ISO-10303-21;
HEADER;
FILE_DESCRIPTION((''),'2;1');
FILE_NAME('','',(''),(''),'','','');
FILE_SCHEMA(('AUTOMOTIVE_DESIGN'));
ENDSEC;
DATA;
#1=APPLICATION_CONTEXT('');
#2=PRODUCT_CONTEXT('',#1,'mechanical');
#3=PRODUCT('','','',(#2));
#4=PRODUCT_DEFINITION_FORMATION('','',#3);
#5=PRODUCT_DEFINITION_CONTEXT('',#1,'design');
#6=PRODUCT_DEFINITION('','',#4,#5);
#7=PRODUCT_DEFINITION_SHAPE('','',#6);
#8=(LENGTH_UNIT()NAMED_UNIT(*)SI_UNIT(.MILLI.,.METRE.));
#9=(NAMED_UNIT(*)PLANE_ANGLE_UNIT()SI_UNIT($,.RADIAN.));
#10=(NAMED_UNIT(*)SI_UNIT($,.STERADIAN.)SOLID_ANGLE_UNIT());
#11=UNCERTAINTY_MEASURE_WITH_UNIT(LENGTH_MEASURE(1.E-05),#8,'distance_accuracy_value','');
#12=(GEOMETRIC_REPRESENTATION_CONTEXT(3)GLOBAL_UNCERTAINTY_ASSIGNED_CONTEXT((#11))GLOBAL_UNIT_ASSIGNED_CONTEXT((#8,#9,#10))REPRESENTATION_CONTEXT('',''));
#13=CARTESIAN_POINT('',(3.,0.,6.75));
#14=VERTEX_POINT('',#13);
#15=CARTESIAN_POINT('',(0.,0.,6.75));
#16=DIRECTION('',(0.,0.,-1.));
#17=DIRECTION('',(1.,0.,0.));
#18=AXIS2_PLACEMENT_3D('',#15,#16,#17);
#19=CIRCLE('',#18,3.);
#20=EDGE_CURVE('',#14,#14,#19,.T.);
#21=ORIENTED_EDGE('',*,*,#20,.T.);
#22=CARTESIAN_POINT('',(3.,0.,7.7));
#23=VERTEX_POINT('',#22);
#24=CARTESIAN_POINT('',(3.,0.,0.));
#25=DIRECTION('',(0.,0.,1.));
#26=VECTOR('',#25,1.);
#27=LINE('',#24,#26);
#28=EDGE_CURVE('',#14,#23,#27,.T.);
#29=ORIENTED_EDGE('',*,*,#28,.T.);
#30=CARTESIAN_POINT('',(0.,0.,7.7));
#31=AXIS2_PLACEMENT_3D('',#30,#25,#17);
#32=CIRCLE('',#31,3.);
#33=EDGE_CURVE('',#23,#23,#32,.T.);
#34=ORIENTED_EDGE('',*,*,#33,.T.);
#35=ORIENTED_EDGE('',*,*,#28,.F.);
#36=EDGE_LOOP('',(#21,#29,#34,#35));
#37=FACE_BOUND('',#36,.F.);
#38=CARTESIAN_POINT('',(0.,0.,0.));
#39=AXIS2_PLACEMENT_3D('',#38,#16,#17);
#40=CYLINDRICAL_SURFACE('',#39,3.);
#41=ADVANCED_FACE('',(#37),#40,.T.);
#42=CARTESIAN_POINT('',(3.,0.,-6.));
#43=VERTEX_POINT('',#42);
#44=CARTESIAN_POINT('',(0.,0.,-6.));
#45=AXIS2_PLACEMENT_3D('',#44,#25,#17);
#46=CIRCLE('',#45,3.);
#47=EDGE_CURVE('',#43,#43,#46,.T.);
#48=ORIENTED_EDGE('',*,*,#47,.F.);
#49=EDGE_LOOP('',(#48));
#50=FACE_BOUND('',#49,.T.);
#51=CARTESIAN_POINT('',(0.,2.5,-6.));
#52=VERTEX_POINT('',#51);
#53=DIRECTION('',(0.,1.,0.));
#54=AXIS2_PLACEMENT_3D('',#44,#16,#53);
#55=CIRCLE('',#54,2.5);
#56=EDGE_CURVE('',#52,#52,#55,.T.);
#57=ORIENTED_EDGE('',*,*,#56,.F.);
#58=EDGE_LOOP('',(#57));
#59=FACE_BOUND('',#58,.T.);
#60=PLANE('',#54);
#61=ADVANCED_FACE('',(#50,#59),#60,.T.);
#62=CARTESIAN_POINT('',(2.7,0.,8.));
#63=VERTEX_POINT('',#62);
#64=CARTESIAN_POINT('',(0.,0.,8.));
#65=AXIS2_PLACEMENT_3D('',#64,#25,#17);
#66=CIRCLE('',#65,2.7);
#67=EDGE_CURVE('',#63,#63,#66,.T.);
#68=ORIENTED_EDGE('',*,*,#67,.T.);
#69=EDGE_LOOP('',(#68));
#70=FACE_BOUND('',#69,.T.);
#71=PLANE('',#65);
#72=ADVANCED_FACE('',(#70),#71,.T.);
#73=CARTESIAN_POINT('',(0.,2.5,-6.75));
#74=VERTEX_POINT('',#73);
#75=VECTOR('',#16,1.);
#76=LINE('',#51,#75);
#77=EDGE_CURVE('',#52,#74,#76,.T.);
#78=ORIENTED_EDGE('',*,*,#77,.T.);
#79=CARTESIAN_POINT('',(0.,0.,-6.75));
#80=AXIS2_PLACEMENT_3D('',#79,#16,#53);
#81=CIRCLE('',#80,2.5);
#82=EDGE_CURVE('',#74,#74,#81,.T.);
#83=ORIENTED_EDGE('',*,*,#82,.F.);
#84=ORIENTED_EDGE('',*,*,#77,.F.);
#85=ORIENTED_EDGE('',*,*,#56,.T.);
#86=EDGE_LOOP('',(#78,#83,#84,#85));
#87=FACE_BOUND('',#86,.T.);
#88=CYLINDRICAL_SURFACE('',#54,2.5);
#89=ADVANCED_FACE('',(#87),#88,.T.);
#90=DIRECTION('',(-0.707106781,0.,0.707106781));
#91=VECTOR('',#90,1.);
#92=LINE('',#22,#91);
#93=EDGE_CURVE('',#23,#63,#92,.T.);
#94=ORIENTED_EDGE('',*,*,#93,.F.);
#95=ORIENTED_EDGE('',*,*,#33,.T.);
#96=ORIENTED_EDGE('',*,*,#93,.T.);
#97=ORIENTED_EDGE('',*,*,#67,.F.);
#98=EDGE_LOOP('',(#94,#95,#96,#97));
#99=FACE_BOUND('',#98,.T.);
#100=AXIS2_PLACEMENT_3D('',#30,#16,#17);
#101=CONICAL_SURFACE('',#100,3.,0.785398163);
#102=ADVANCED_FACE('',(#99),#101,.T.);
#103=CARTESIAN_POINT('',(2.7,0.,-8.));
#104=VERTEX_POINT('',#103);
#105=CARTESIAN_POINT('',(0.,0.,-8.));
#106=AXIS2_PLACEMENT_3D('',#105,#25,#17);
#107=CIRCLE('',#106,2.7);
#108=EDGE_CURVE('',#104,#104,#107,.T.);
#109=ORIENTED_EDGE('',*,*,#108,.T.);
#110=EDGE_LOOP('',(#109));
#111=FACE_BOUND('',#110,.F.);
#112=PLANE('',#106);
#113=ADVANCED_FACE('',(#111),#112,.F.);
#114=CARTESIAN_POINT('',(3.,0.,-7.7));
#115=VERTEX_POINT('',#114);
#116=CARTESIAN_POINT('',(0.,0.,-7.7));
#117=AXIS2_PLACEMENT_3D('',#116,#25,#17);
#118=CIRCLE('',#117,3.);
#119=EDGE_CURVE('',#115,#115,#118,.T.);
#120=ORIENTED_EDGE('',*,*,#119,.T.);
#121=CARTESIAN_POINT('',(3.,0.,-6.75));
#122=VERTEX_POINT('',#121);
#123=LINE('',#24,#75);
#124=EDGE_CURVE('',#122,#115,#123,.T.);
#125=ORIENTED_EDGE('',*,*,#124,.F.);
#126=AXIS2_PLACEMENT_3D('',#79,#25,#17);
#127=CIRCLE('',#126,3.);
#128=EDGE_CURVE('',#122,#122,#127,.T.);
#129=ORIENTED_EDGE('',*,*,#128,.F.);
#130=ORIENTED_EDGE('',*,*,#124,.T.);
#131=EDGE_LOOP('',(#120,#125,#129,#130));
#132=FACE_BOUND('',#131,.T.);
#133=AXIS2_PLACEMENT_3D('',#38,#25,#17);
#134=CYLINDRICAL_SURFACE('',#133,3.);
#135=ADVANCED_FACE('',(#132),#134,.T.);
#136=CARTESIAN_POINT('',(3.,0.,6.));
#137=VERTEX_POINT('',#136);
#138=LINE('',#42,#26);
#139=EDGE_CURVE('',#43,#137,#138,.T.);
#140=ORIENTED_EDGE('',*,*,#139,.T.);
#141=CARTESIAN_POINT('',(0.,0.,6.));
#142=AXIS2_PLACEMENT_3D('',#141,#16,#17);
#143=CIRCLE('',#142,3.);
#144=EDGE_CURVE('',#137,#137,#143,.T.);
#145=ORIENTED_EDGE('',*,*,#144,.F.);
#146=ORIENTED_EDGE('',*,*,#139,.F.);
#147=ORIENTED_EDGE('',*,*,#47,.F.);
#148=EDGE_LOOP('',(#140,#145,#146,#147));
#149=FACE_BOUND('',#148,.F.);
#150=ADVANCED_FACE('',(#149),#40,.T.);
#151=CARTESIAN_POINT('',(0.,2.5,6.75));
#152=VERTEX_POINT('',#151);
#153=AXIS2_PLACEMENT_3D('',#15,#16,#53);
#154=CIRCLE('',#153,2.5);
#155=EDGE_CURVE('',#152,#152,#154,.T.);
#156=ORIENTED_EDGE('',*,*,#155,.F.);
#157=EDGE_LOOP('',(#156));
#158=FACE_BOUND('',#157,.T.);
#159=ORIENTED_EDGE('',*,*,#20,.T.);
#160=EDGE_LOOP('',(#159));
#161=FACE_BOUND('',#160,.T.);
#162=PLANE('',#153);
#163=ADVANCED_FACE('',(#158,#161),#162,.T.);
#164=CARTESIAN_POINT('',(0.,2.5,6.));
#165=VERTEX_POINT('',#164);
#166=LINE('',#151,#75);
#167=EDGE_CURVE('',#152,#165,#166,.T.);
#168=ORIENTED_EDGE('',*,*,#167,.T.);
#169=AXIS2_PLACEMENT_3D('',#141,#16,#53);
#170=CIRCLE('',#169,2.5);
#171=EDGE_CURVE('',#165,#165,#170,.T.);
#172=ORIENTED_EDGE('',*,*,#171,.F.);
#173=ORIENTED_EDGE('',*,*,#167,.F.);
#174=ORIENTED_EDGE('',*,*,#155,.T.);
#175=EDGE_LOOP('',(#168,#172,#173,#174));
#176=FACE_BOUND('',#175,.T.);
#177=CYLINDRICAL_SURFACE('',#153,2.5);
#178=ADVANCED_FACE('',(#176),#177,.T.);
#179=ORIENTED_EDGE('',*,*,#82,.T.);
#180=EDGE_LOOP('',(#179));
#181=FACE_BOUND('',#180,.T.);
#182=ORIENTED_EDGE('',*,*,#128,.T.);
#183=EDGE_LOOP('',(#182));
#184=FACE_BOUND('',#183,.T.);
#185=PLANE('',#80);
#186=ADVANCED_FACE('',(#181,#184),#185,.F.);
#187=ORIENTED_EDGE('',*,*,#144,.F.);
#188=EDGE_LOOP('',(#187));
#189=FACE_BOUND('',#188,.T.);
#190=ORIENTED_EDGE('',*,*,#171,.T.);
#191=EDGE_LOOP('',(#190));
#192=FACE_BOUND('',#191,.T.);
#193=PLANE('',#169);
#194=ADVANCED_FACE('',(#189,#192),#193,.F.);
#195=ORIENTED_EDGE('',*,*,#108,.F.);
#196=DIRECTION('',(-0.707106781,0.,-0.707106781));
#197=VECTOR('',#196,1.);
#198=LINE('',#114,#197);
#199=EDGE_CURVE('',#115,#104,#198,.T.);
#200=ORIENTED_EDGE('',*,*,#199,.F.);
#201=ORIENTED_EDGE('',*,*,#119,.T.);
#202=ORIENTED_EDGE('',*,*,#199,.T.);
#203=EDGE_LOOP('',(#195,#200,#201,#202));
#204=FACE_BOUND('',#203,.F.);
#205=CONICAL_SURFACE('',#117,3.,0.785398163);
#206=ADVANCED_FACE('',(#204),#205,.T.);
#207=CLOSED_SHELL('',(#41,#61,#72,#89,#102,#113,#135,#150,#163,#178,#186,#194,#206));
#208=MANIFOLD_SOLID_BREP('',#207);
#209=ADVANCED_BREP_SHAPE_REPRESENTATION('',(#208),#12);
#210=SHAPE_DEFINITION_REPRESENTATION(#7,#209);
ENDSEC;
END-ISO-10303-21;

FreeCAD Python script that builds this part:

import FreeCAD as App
import Part
import Sketcher
from FreeCAD import Vector


def edges_at(feature, points):
    """Names of the edges that pass closest to the given points."""
    edges = feature.Shape.Edges
    near = lambda p: min(range(len(edges)), key=lambda i: edges[i].distToShape(Part.Vertex(*p))[0])
    return sorted({f"Edge{near(p) + 1}" for p in points})

doc = App.newDocument("Part")
body = doc.addObject("PartDesign::Body", "Body")

sketch1 = body.newObject("Sketcher::SketchObject", "Sketch")
sketch1.AttachmentSupport = (doc.getObject("XY_Plane"), [""])
sketch1.MapMode = "FlatFace"
sketch1.addGeometry(Part.Circle(Vector(0, 0, 0), Vector(0, 0, 1), 3), False)
sketch1.addConstraint([
    Sketcher.Constraint("Coincident", 0, 3, -1, 1),
    Sketcher.Constraint("Diameter", 0, 6.0),
])
pad1 = body.newObject("PartDesign::Pad", "Pad")
pad1.Profile = sketch1
pad1.Length = 16
pad1.Midplane = True

sketch2 = body.newObject("Sketcher::SketchObject", "Sketch001")
sketch2.AttachmentSupport = (doc.getObject("YZ_Plane"), [""])
sketch2.MapMode = "FlatFace"
sketch2.addGeometry([
    Part.LineSegment(Vector(3.25, -6.75, 0), Vector(3.25, -6, 0)),
    Part.LineSegment(Vector(3.25, -6, 0), Vector(2.5, -6, 0)),
    Part.LineSegment(Vector(2.5, -6, 0), Vector(2.5, -6.75, 0)),
    Part.LineSegment(Vector(2.5, -6.75, 0), Vector(3.25, -6.75, 0)),
    Part.LineSegment(Vector(3.1313, 6, 0), Vector(3.1313, 6.75, 0)),
    Part.LineSegment(Vector(3.1313, 6.75, 0), Vector(2.5, 6.75, 0)),
    Part.LineSegment(Vector(2.5, 6.75, 0), Vector(2.5, 6, 0)),
    Part.LineSegment(Vector(2.5, 6, 0), Vector(3.1313, 6, 0)),
], False)
sketch2.addConstraint([
    Sketcher.Constraint("Coincident", 0, 2, 1, 1),
    Sketcher.Constraint("Coincident", 1, 2, 2, 1),
    Sketcher.Constraint("Coincident", 2, 2, 3, 1),
    Sketcher.Constraint("Coincident", 3, 2, 0, 1),
    Sketcher.Constraint("Coincident", 4, 2, 5, 1),
    Sketcher.Constraint("Coincident", 5, 2, 6, 1),
    Sketcher.Constraint("Coincident", 6, 2, 7, 1),
    Sketcher.Constraint("Coincident", 7, 2, 4, 1),
    Sketcher.Constraint("Vertical", 0),
    Sketcher.Constraint("Horizontal", 1),
    Sketcher.Constraint("Vertical", 2),
    Sketcher.Constraint("Horizontal", 3),
    Sketcher.Constraint("Vertical", 4),
    Sketcher.Constraint("Horizontal", 5),
    Sketcher.Constraint("Vertical", 6),
    Sketcher.Constraint("Horizontal", 7),
    Sketcher.Constraint("Symmetric", 2, 2, 5, 2, -1),
    Sketcher.Constraint("Equal", 3, 0),
    Sketcher.Constraint("Equal", 2, 4),
    Sketcher.Constraint("DistanceY", 0, 2, -1, 1, 6.0),
    Sketcher.Constraint("DistanceX", 1, 2, 1, 1, 0.75),
    Sketcher.Constraint("DistanceX", -1, 1, 1, 2, 2.5),
    Sketcher.Constraint("DistanceX", 5, 2, 5, 1, 0.6313),
])
groove = body.newObject("PartDesign::Groove", "Groove")
groove.Profile = sketch2
groove.ReferenceAxis = (sketch2, ["V_Axis"])
groove.Angle = 360
doc.recompute()

chamfer = body.newObject("PartDesign::Chamfer", "Chamfer")
chamfer.Base = (groove, edges_at(groove, [(-3, 0, 8), (-3, 0, -8)]))
chamfer.Size = 0.3

doc.recompute()
